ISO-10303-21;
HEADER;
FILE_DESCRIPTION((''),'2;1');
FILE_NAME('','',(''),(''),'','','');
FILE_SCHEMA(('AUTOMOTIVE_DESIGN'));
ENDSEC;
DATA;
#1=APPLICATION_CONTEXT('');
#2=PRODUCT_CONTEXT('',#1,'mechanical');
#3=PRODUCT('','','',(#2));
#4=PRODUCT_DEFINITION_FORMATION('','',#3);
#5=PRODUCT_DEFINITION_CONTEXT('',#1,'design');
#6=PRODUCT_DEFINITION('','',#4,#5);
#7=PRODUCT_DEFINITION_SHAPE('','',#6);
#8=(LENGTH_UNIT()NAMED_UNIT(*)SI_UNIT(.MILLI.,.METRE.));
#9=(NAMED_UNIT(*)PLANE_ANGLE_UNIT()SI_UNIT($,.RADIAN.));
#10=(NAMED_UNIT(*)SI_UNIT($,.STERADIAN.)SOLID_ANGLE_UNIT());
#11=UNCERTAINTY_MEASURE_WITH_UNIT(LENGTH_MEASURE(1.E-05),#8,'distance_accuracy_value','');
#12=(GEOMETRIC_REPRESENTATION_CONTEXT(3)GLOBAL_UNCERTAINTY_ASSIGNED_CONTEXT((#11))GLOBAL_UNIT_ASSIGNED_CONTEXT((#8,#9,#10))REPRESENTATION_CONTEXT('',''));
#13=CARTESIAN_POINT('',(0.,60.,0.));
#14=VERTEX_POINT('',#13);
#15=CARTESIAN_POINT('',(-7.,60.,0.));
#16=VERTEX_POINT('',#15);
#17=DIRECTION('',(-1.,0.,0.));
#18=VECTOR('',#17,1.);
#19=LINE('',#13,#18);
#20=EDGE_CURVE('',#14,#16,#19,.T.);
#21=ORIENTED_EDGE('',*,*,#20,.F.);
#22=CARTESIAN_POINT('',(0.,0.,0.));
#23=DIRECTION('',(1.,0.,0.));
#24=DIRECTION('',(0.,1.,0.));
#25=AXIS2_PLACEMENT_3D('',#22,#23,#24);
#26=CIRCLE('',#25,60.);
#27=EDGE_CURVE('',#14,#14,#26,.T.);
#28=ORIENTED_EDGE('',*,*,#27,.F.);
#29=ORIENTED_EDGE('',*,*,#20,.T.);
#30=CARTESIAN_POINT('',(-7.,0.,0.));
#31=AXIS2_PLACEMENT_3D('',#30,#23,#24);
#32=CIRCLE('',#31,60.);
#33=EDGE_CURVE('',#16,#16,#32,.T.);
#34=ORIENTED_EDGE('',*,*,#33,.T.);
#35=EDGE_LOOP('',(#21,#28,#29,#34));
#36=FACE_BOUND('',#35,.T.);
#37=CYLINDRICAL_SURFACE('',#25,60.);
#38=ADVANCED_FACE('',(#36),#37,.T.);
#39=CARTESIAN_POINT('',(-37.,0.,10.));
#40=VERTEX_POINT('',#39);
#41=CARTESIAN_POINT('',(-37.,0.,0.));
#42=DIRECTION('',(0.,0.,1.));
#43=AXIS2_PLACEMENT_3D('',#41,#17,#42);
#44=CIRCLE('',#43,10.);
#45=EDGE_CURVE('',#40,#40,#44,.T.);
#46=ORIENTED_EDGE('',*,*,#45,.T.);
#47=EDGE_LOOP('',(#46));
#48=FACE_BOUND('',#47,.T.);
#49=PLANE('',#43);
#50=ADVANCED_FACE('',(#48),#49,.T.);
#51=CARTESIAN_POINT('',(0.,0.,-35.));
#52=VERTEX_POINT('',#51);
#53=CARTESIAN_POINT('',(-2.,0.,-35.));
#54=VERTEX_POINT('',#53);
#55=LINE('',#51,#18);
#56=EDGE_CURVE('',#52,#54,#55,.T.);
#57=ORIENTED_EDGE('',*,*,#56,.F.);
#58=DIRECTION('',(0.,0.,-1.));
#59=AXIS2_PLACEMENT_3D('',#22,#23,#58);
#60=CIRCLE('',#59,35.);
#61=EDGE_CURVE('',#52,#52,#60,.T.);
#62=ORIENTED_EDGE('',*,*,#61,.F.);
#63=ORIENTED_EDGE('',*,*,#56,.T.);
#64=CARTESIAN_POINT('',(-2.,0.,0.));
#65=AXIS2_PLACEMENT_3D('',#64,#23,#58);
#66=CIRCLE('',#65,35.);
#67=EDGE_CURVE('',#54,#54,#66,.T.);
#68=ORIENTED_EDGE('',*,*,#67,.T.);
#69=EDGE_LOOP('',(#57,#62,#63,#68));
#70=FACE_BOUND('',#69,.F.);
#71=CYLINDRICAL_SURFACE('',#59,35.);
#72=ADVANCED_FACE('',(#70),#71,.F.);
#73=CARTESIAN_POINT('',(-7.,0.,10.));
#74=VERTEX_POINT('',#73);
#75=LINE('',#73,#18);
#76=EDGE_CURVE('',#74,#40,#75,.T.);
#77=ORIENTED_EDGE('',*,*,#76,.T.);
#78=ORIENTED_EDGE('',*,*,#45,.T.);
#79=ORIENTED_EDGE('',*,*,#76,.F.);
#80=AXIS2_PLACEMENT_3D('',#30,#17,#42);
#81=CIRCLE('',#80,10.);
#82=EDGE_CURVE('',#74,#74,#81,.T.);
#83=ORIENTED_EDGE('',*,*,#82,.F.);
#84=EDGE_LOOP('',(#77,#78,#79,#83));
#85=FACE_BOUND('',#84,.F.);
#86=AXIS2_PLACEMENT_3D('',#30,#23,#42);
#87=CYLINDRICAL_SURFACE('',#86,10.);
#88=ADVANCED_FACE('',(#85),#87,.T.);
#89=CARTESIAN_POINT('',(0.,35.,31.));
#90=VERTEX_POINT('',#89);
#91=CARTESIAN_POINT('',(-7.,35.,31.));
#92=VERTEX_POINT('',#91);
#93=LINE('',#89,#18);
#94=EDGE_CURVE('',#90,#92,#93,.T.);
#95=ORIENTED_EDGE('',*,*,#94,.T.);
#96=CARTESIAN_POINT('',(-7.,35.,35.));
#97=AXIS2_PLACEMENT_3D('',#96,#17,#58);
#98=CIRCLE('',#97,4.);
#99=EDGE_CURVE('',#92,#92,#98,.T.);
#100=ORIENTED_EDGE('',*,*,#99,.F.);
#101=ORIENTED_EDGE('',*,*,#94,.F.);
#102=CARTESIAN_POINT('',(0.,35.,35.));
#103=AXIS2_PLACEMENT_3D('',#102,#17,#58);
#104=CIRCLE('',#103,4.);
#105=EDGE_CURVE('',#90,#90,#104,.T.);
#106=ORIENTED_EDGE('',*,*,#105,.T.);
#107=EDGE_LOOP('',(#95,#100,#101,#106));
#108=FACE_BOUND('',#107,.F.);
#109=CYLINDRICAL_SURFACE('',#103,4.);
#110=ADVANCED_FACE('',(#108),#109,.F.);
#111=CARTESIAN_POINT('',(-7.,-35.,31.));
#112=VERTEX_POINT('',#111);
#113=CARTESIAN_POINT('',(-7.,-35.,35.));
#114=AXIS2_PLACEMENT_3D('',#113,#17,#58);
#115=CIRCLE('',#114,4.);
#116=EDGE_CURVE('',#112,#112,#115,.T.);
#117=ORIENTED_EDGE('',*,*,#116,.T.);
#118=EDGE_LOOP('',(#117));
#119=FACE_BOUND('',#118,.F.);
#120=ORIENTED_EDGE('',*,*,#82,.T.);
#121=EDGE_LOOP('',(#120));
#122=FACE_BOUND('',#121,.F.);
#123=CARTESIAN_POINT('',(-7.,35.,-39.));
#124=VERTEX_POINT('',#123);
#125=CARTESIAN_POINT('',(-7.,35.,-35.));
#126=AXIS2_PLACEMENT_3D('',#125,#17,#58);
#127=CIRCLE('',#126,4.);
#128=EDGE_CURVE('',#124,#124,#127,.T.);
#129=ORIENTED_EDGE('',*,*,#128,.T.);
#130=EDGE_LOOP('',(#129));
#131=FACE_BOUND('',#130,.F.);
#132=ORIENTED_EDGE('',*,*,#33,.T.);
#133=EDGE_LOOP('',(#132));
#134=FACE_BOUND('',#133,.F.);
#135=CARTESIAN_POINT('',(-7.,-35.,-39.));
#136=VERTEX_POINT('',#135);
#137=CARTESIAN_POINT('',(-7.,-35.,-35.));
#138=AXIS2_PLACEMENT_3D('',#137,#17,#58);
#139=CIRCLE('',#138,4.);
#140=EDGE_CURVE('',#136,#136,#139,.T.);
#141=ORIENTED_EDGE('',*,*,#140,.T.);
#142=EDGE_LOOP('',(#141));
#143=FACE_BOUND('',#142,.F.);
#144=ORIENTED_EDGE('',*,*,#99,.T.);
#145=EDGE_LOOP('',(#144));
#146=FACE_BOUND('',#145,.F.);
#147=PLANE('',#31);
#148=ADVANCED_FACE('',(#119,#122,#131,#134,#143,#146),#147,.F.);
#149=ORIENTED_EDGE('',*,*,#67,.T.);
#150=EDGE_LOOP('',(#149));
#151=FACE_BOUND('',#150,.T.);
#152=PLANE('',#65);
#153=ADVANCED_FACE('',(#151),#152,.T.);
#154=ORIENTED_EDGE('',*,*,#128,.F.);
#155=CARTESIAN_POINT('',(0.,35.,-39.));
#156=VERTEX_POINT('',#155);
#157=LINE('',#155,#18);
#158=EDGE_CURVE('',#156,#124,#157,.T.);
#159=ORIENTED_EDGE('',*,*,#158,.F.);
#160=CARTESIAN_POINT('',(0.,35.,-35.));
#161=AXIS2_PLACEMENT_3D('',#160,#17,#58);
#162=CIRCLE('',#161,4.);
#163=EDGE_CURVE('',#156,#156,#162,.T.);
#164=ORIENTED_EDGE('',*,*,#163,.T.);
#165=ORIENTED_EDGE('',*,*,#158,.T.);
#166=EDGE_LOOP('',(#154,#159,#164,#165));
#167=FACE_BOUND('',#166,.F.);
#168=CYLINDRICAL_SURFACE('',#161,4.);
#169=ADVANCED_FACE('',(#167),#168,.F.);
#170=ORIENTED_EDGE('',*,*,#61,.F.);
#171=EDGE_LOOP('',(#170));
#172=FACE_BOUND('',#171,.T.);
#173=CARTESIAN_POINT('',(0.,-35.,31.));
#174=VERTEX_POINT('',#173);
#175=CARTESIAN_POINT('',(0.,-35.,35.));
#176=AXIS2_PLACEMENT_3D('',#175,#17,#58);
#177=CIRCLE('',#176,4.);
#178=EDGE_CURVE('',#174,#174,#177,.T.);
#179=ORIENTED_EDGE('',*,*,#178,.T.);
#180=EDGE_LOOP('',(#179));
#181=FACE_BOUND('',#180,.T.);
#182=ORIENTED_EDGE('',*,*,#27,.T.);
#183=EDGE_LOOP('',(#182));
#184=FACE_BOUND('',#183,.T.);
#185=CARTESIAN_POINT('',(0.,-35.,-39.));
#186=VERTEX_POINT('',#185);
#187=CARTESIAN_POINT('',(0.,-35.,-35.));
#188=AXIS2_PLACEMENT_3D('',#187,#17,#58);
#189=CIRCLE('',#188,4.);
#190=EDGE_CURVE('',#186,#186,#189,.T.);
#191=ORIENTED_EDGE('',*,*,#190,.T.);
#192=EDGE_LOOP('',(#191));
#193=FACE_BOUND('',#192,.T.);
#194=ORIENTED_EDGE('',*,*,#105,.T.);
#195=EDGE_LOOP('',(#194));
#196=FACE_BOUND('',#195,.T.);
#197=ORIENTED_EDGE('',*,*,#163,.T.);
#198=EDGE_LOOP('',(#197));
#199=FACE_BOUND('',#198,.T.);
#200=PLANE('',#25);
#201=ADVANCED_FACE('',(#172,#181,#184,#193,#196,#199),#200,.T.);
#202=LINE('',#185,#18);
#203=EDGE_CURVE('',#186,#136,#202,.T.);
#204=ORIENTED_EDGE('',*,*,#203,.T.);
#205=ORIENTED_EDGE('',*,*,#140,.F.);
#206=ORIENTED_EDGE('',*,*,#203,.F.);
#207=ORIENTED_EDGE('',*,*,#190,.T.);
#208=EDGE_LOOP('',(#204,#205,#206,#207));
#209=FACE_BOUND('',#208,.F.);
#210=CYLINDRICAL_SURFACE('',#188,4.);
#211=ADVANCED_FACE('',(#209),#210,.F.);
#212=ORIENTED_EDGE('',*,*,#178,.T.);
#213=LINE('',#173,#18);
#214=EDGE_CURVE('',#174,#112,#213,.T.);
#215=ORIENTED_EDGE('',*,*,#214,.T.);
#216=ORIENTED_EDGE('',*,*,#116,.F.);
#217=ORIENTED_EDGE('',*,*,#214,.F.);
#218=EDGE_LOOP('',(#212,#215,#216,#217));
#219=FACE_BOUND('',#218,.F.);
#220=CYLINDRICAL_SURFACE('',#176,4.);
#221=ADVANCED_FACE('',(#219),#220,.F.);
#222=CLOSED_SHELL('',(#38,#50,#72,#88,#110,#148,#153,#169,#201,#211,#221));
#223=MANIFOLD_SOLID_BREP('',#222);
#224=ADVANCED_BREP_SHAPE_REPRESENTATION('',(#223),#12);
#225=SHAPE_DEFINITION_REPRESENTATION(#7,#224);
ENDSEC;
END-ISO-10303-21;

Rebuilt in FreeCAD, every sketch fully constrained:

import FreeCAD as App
import Part
import Sketcher
from FreeCAD import Vector

doc = App.newDocument("Part")
body = doc.addObject("PartDesign::Body", "Body")

# Sketch on YZ plane
sketch1 = body.newObject("Sketcher::SketchObject", "Sketch")
sketch1.AttachmentSupport = (doc.getObject("YZ_Plane"), [""])
sketch1.MapMode = "FlatFace"
sketch1.addGeometry(Part.Circle(Vector(0, 0, 0), Vector(0, 0, 1), 60), False)
sketch1.addConstraint([
    Sketcher.Constraint("Coincident", 0, 3, -1, 1),
    Sketcher.Constraint("Diameter", 0, 120.0),
])
pad1 = body.newObject("PartDesign::Pad", "Pad")
pad1.Profile = sketch1
pad1.Length = 7
pad1.Reversed = True

# Sketch on YZ plane
sketch2 = body.newObject("Sketcher::SketchObject", "Sketch001")
sketch2.AttachmentSupport = (doc.getObject("YZ_Plane"), [""])
sketch2.MapMode = "FlatFace"
sketch2.addGeometry([
    Part.Circle(Vector(35, 35, 0), Vector(0, 0, 1), 4),
    Part.Circle(Vector(35, -35, 0), Vector(0, 0, 1), 4),
    Part.Circle(Vector(-35, -35, 0), Vector(0, 0, 1), 4),
    Part.Circle(Vector(-35, 35, 0), Vector(0, 0, 1), 4),
], False)
sketch2.addConstraint([
    Sketcher.Constraint("Equal", 0, 1),
    Sketcher.Constraint("Equal", 1, 2),
    Sketcher.Constraint("Equal", 2, 3),
    Sketcher.Constraint("Symmetric", 0, 3, 2, 3, -1, 1),
    Sketcher.Constraint("Symmetric", 1, 3, 3, 3, -1, 1),
    Sketcher.Constraint("Symmetric", 1, 3, 2, 3, -2),
    Sketcher.Constraint("Diameter", 0, 8.0),
    Sketcher.Constraint("DistanceX", -1, 1, 0, 3, 35.0),
    Sketcher.Constraint("DistanceY", -1, 1, 0, 3, 35.0),
])
doc.recompute()
hole = body.newObject("PartDesign::Hole", "Hole")
hole.Profile = sketch2
hole.ThreadType = "None"
hole.Diameter = 8
hole.DepthType = "ThroughAll"

# Sketch on YZ plane
sketch3 = body.newObject("Sketcher::SketchObject", "Sketch002")
sketch3.AttachmentSupport = (doc.getObject("YZ_Plane"), [""])
sketch3.MapMode = "FlatFace"
sketch3.AttachmentOffset = App.Placement(Vector(0, 0, -7), App.Rotation())
sketch3.addGeometry(Part.Circle(Vector(0, 0, 0), Vector(0, 0, 1), 10), False)
sketch3.addConstraint([
    Sketcher.Constraint("Coincident", 0, 3, -1, 1),
    Sketcher.Constraint("Diameter", 0, 20.0),
])
pad2 = body.newObject("PartDesign::Pad", "Pad001")
pad2.Profile = sketch3
pad2.Length = 30
pad2.Reversed = True

# Sketch on YZ plane
sketch4 = body.newObject("Sketcher::SketchObject", "Sketch003")
sketch4.AttachmentSupport = (doc.getObject("YZ_Plane"), [""])
sketch4.MapMode = "FlatFace"
sketch4.addGeometry(Part.Circle(Vector(0, 0, 0), Vector(0, 0, 1), 35), False)
sketch4.addConstraint([
    Sketcher.Constraint("Coincident", 0, 3, -1, 1),
    Sketcher.Constraint("Diameter", 0, 70.0),
])
pocket1 = body.newObject("PartDesign::Pocket", "Pocket")
pocket1.Profile = sketch4
pocket1.Length = 2

doc.recompute()
